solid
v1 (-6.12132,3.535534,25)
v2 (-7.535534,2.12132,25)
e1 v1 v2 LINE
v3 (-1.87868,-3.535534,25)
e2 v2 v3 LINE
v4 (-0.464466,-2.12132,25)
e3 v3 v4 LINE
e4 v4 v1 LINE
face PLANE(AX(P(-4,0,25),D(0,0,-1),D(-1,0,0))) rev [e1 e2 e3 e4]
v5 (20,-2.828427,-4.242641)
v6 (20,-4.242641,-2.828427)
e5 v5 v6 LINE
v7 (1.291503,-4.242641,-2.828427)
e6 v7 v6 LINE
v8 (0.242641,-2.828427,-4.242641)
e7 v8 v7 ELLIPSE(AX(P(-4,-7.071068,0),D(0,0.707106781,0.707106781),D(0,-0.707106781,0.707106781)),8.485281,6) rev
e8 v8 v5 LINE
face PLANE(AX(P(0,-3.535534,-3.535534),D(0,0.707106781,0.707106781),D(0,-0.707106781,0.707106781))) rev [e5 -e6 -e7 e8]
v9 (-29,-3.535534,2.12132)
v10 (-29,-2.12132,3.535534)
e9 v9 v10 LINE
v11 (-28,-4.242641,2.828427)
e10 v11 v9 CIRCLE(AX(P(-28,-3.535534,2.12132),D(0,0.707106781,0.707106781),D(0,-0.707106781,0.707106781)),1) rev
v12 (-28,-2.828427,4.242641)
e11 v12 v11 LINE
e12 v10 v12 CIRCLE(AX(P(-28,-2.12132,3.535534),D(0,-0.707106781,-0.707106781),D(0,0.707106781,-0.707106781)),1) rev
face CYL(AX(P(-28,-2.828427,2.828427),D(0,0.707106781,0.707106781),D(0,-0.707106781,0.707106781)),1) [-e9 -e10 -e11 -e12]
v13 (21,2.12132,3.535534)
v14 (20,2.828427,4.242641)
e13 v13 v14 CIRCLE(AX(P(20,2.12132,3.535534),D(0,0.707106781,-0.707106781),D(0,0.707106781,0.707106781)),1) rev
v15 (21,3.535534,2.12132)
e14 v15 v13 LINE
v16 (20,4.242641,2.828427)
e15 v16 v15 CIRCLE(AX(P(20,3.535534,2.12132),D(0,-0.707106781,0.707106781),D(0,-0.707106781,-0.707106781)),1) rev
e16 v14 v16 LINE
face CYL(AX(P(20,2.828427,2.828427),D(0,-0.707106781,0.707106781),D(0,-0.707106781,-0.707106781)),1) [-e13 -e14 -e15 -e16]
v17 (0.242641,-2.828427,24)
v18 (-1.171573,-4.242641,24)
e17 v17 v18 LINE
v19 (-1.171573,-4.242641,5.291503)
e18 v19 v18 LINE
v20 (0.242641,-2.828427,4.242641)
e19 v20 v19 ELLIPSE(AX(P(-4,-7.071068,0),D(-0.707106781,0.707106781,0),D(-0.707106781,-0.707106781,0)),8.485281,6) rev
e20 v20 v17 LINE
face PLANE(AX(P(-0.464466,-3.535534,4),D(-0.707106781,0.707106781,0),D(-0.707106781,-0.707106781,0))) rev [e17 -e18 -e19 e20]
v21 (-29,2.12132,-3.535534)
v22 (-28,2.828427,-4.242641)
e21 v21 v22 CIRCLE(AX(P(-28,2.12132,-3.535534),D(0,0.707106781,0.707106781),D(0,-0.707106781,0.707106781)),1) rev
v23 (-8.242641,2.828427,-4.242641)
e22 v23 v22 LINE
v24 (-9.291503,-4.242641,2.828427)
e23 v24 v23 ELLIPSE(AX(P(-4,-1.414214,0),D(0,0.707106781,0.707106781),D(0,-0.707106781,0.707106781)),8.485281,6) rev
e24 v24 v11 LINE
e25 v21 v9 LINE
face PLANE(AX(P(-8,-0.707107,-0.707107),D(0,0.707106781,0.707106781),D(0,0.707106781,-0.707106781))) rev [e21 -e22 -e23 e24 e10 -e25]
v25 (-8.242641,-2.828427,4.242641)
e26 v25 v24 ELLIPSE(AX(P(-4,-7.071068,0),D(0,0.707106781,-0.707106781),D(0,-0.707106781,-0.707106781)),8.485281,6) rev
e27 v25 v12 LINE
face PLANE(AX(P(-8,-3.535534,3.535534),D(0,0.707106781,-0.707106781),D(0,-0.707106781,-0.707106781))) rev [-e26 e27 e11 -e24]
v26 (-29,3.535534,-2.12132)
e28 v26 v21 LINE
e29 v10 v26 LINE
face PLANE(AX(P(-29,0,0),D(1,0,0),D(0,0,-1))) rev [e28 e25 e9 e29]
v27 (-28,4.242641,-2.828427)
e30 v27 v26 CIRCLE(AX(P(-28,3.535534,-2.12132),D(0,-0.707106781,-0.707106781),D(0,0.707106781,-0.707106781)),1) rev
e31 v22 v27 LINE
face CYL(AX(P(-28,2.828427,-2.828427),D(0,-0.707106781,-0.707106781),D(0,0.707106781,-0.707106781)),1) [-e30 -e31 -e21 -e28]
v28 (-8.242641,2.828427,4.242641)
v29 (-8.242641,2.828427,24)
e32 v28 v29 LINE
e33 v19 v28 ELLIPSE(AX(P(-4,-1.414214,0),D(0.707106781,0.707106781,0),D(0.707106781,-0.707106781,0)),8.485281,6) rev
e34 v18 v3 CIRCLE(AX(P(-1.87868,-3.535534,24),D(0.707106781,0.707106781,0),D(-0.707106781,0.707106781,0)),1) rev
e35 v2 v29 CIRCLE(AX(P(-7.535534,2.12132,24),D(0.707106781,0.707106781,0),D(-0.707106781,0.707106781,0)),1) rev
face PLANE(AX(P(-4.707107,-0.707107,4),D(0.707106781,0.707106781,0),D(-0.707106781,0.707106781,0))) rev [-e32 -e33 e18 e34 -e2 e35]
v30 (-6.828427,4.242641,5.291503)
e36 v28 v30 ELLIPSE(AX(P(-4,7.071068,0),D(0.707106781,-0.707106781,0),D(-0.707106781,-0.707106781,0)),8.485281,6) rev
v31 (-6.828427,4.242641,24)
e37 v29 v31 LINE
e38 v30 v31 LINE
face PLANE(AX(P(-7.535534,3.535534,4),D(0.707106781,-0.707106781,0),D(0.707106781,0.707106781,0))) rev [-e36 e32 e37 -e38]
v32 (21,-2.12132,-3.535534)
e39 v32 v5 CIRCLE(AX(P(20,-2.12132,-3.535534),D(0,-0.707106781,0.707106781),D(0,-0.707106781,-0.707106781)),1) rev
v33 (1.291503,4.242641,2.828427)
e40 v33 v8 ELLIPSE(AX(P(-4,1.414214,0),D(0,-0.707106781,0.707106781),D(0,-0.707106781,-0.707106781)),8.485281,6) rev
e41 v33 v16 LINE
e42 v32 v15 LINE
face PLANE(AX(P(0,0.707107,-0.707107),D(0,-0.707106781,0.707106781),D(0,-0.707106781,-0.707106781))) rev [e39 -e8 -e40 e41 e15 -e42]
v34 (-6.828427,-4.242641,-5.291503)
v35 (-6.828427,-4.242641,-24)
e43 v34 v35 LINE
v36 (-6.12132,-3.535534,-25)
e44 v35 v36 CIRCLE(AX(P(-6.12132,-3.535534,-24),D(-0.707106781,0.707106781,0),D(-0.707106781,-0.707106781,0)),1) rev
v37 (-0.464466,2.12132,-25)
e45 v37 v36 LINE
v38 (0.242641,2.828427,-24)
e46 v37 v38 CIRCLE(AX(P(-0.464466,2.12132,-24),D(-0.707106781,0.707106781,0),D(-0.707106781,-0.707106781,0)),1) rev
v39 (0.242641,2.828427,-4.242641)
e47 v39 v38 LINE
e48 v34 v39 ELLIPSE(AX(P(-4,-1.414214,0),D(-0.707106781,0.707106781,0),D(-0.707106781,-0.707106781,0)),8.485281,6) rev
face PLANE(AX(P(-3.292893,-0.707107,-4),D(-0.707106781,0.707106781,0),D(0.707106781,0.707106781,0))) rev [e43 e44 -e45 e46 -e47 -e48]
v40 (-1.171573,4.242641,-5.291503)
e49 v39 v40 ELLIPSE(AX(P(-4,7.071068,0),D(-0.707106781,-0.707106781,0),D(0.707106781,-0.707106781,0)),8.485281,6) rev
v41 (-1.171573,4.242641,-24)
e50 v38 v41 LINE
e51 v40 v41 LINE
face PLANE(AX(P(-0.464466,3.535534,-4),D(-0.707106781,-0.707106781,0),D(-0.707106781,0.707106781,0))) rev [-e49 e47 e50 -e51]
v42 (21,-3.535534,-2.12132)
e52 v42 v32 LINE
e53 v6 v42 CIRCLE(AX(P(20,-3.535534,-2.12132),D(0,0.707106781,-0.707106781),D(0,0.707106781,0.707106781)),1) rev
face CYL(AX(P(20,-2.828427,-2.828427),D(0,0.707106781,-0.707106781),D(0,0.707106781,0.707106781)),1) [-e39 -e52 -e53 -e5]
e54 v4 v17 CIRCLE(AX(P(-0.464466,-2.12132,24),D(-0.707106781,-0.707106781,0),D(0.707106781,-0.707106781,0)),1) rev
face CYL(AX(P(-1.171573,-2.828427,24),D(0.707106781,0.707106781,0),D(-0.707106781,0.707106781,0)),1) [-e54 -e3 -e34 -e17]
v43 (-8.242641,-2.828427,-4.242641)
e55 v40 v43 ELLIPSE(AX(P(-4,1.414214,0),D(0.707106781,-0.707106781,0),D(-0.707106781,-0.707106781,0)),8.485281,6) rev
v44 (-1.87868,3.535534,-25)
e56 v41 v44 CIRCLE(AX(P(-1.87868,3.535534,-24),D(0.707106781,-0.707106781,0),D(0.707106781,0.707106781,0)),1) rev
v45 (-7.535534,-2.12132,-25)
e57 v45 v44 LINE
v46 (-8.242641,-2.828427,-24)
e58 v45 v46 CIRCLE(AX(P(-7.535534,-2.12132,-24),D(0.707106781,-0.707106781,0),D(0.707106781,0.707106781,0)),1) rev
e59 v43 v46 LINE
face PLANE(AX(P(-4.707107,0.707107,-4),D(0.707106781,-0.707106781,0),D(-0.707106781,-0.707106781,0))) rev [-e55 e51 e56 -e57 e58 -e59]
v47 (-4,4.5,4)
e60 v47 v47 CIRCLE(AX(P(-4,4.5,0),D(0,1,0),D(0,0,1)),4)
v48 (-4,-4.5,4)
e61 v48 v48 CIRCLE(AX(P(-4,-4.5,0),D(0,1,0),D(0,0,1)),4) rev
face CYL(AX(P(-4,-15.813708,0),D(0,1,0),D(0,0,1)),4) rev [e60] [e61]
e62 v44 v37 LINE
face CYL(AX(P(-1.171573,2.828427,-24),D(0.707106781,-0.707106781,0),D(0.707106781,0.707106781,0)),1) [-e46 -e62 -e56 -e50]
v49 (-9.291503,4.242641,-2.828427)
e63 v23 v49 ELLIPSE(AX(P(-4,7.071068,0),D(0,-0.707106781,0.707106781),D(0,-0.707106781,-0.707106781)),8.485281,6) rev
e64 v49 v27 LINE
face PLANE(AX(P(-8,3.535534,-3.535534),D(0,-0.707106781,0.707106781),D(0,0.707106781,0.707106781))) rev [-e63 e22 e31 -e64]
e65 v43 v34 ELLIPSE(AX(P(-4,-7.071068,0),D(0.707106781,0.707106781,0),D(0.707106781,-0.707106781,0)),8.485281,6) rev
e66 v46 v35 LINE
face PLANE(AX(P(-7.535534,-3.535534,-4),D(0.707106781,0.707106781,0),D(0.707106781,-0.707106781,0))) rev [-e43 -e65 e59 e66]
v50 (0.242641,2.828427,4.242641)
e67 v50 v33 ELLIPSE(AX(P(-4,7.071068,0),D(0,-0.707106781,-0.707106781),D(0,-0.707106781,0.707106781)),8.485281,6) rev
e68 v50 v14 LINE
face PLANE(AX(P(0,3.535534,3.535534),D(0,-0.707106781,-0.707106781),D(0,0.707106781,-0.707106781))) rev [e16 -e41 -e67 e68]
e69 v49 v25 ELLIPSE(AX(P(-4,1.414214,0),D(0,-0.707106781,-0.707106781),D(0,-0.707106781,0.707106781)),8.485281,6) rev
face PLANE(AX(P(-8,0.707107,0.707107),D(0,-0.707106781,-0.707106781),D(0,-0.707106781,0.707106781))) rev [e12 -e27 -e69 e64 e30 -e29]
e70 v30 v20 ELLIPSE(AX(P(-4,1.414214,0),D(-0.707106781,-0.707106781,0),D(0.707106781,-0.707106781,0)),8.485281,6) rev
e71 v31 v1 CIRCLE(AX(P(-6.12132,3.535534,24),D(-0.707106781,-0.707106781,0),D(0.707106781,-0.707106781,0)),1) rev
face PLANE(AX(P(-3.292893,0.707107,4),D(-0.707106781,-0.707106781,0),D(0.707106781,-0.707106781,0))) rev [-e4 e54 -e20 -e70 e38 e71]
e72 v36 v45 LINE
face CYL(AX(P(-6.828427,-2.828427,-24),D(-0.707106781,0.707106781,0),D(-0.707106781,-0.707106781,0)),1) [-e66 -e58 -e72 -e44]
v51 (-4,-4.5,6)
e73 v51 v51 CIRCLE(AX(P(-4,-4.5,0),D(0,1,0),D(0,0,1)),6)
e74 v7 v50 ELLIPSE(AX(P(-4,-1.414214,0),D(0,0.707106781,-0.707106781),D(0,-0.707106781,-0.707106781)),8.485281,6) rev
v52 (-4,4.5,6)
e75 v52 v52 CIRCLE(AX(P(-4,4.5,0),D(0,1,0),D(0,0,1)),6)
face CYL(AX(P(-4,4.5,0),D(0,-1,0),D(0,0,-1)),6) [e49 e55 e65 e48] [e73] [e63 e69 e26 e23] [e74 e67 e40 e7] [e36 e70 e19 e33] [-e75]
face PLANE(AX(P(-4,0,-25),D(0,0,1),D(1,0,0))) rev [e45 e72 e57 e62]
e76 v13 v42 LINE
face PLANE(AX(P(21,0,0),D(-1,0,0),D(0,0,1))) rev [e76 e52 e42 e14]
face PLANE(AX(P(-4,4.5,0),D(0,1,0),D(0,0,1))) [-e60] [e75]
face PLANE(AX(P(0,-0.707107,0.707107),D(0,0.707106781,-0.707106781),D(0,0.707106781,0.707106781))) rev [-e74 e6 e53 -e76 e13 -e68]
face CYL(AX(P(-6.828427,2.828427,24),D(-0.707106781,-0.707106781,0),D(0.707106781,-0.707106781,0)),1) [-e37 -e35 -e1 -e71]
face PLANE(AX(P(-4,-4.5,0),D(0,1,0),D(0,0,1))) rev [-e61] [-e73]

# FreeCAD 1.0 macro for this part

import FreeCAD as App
import Part
import Sketcher

V = App.Vector
Q = App.Units.Quantity


def edges_at(feature, points):
    """Names of the edges that pass closest to the given points."""
    edges = feature.Shape.Edges
    near = lambda p: min(range(len(edges)), key=lambda i: edges[i].distToShape(Part.Vertex(*p))[0])
    return sorted({f"Edge{near(p) + 1}" for p in points})

doc = App.newDocument("Part")
params = doc.addObject("Spreadsheet::Sheet", "Params")
for row, (alias, value) in enumerate([
    ("sketch1_length", "10 mm"),
    ("sketch1_length2", "2 mm"),
    ("sketch2_length", "10 mm"),
    ("sketch2_length2", "2 mm"),
    ("sketch3_diameter", "12 mm"),
    ("pad1_length", "9 mm"),
    ("sketch4_diameter", "8 mm"),
    ("pocket1_length", "9 mm"),
    ("fillet_radius", "1 mm"),
], start=1):
    params.set(f"A{row}", alias)
    params.set(f"B{row}", "=" + value)
    params.setAlias(f"B{row}", alias)

body = doc.addObject("PartDesign::Body", "Body")

sketch1 = body.newObject("Sketcher::SketchObject", "Sketch")
sketch1.AttachmentSupport = (doc.getObject("YZ_Plane"), [""])
sketch1.MapMode = "FlatFace"
sketch1.addGeometry(Part.LineSegment(V(2.8, 4.2, 0), V(-4.2, -2.8, 0)), False)
sketch1.addGeometry(Part.LineSegment(V(-4.2, -2.8, 0), V(-2.8, -4.2, 0)), False)
sketch1.addGeometry(Part.LineSegment(V(-2.8, -4.2, 0), V(4.2, 2.8, 0)), False)
sketch1.addGeometry(Part.LineSegment(V(4.2, 2.8, 0), V(2.8, 4.2, 0)), False)
sketch1.addConstraint(Sketcher.Constraint("Coincident", 0, 2, 1, 1))
sketch1.addConstraint(Sketcher.Constraint("Coincident", 1, 2, 2, 1))
sketch1.addConstraint(Sketcher.Constraint("Coincident", 2, 2, 3, 1))
sketch1.addConstraint(Sketcher.Constraint("Coincident", 3, 2, 0, 1))
sketch1.addConstraint(Sketcher.Constraint("Symmetric", 0, 2, 2, 2, -1, 1))
sketch1.addConstraint(Sketcher.Constraint("Symmetric", 1, 2, 3, 2, -1, 1))
sketch1.addConstraint(Sketcher.Constraint("Perpendicular", 0, 1))
sketch1.addConstraint(Sketcher.Constraint("Angle", 0, Q("-135 deg")))
sketch1.addConstraint(Sketcher.Constraint("Distance", 0, Q("10 mm")))
sketch1.addConstraint(Sketcher.Constraint("Distance", 1, Q("2 mm")))
sketch1.setExpression("Constraints[8]", "Params.sketch1_length")
sketch1.setExpression("Constraints[9]", "Params.sketch1_length2")

sketch2 = body.newObject("Sketcher::SketchObject", "Sketch001")
sketch2.AttachmentSupport = (doc.getObject("YZ_Plane"), [""])
sketch2.MapMode = "FlatFace"
sketch2.AttachmentOffset = App.Placement(V(0, 0, 21), App.Rotation())
sketch2.addGeometry(Part.LineSegment(V(-2.8, -4.2, 0), V(4.2, 2.8, 0)), False)
sketch2.addGeometry(Part.LineSegment(V(4.2, 2.8, 0), V(2.8, 4.2, 0)), False)
sketch2.addGeometry(Part.LineSegment(V(2.8, 4.2, 0), V(-4.2, -2.8, 0)), False)
sketch2.addGeometry(Part.LineSegment(V(-4.2, -2.8, 0), V(-2.8, -4.2, 0)), False)
sketch2.addConstraint(Sketcher.Constraint("Coincident", 0, 2, 1, 1))
sketch2.addConstraint(Sketcher.Constraint("Coincident", 1, 2, 2, 1))
sketch2.addConstraint(Sketcher.Constraint("Coincident", 2, 2, 3, 1))
sketch2.addConstraint(Sketcher.Constraint("Coincident", 3, 2, 0, 1))
sketch2.addConstraint(Sketcher.Constraint("Symmetric", 0, 2, 2, 2, -1, 1))
sketch2.addConstraint(Sketcher.Constraint("Symmetric", 1, 2, 3, 2, -1, 1))
sketch2.addConstraint(Sketcher.Constraint("Perpendicular", 0, 1))
sketch2.addConstraint(Sketcher.Constraint("Angle", 0, Q("45 deg")))
sketch2.addConstraint(Sketcher.Constraint("Distance", 0, Q("10 mm")))
sketch2.addConstraint(Sketcher.Constraint("Distance", 1, Q("2 mm")))
sketch2.setExpression("Constraints[8]", "Params.sketch2_length")
sketch2.setExpression("Constraints[9]", "Params.sketch2_length2")

additiveloft = body.newObject("PartDesign::AdditiveLoft", "AdditiveLoft")
additiveloft.Profile = sketch1
additiveloft.Sections = [sketch2]

sketch3 = body.newObject("Sketcher::SketchObject", "Sketch002")
sketch3.AttachmentSupport = (doc.getObject("XZ_Plane"), [""])
sketch3.MapMode = "FlatFace"
sketch3.addGeometry(Part.Circle(V(-4, 0, 0), V(0, 0, 1), 6), False)
sketch3.addConstraint(Sketcher.Constraint("PointOnObject", 0, 3, -1))
sketch3.addConstraint(Sketcher.Constraint("Diameter", 0, Q("12 mm")))
sketch3.addConstraint(Sketcher.Constraint("DistanceX", 0, 3, -1, 1, Q("4 mm")))
sketch3.setExpression("Constraints[1]", "Params.sketch3_diameter")
pad1 = body.newObject("PartDesign::Pad", "Pad")
pad1.Profile = sketch3
pad1.setExpression("Length", "Params.pad1_length")
pad1.Midplane = True
doc.recompute()

datumline = body.newObject("PartDesign::Line", "DatumLine")
datumline.Placement = App.Placement(V(-4, 0, 0), App.Rotation(V(0, 0, 1), V(0, 1, 0)))
polarpattern = body.newObject("PartDesign::PolarPattern", "PolarPattern")
polarpattern.Originals = [additiveloft]
polarpattern.Axis = (datumline, [""])
polarpattern.Angle = 360
polarpattern.Occurrences = 4
body.Tip = polarpattern

sketch4 = body.newObject("Sketcher::SketchObject", "Sketch003")
sketch4.AttachmentSupport = (doc.getObject("XZ_Plane"), [""])
sketch4.MapMode = "FlatFace"
sketch4.AttachmentOffset = App.Placement(V(0, 0, -4.5), App.Rotation())
sketch4.addGeometry(Part.Circle(V(-4, 0, 0), V(0, 0, 1), 4), False)
sketch4.addConstraint(Sketcher.Constraint("PointOnObject", 0, 3, -1))
sketch4.addConstraint(Sketcher.Constraint("Diameter", 0, Q("8 mm")))
sketch4.addConstraint(Sketcher.Constraint("DistanceX", 0, 3, -1, 1, Q("4 mm")))
sketch4.setExpression("Constraints[1]", "Params.sketch4_diameter")
pocket1 = body.newObject("PartDesign::Pocket", "Pocket")
pocket1.Profile = sketch4
pocket1.setExpression("Length", "Params.pocket1_length")
pocket1.Reversed = True
doc.recompute()

fillet = body.newObject("PartDesign::Fillet", "Fillet")
fillet.Base = (pocket1, edges_at(pocket1, [
    (-7.536, 3.536, 25),
    (-0.464, -3.536, 25),
    (-29, -3.536, 3.536),
    (-29, 3.536, -3.536),
    (-7.536, -3.536, -25),
    (-0.464, 3.536, -25),
    (21, -3.536, -3.536),
    (21, 3.536, 3.536),
]))
fillet.setExpression("Radius", "Params.fillet_radius")

doc.recompute()
